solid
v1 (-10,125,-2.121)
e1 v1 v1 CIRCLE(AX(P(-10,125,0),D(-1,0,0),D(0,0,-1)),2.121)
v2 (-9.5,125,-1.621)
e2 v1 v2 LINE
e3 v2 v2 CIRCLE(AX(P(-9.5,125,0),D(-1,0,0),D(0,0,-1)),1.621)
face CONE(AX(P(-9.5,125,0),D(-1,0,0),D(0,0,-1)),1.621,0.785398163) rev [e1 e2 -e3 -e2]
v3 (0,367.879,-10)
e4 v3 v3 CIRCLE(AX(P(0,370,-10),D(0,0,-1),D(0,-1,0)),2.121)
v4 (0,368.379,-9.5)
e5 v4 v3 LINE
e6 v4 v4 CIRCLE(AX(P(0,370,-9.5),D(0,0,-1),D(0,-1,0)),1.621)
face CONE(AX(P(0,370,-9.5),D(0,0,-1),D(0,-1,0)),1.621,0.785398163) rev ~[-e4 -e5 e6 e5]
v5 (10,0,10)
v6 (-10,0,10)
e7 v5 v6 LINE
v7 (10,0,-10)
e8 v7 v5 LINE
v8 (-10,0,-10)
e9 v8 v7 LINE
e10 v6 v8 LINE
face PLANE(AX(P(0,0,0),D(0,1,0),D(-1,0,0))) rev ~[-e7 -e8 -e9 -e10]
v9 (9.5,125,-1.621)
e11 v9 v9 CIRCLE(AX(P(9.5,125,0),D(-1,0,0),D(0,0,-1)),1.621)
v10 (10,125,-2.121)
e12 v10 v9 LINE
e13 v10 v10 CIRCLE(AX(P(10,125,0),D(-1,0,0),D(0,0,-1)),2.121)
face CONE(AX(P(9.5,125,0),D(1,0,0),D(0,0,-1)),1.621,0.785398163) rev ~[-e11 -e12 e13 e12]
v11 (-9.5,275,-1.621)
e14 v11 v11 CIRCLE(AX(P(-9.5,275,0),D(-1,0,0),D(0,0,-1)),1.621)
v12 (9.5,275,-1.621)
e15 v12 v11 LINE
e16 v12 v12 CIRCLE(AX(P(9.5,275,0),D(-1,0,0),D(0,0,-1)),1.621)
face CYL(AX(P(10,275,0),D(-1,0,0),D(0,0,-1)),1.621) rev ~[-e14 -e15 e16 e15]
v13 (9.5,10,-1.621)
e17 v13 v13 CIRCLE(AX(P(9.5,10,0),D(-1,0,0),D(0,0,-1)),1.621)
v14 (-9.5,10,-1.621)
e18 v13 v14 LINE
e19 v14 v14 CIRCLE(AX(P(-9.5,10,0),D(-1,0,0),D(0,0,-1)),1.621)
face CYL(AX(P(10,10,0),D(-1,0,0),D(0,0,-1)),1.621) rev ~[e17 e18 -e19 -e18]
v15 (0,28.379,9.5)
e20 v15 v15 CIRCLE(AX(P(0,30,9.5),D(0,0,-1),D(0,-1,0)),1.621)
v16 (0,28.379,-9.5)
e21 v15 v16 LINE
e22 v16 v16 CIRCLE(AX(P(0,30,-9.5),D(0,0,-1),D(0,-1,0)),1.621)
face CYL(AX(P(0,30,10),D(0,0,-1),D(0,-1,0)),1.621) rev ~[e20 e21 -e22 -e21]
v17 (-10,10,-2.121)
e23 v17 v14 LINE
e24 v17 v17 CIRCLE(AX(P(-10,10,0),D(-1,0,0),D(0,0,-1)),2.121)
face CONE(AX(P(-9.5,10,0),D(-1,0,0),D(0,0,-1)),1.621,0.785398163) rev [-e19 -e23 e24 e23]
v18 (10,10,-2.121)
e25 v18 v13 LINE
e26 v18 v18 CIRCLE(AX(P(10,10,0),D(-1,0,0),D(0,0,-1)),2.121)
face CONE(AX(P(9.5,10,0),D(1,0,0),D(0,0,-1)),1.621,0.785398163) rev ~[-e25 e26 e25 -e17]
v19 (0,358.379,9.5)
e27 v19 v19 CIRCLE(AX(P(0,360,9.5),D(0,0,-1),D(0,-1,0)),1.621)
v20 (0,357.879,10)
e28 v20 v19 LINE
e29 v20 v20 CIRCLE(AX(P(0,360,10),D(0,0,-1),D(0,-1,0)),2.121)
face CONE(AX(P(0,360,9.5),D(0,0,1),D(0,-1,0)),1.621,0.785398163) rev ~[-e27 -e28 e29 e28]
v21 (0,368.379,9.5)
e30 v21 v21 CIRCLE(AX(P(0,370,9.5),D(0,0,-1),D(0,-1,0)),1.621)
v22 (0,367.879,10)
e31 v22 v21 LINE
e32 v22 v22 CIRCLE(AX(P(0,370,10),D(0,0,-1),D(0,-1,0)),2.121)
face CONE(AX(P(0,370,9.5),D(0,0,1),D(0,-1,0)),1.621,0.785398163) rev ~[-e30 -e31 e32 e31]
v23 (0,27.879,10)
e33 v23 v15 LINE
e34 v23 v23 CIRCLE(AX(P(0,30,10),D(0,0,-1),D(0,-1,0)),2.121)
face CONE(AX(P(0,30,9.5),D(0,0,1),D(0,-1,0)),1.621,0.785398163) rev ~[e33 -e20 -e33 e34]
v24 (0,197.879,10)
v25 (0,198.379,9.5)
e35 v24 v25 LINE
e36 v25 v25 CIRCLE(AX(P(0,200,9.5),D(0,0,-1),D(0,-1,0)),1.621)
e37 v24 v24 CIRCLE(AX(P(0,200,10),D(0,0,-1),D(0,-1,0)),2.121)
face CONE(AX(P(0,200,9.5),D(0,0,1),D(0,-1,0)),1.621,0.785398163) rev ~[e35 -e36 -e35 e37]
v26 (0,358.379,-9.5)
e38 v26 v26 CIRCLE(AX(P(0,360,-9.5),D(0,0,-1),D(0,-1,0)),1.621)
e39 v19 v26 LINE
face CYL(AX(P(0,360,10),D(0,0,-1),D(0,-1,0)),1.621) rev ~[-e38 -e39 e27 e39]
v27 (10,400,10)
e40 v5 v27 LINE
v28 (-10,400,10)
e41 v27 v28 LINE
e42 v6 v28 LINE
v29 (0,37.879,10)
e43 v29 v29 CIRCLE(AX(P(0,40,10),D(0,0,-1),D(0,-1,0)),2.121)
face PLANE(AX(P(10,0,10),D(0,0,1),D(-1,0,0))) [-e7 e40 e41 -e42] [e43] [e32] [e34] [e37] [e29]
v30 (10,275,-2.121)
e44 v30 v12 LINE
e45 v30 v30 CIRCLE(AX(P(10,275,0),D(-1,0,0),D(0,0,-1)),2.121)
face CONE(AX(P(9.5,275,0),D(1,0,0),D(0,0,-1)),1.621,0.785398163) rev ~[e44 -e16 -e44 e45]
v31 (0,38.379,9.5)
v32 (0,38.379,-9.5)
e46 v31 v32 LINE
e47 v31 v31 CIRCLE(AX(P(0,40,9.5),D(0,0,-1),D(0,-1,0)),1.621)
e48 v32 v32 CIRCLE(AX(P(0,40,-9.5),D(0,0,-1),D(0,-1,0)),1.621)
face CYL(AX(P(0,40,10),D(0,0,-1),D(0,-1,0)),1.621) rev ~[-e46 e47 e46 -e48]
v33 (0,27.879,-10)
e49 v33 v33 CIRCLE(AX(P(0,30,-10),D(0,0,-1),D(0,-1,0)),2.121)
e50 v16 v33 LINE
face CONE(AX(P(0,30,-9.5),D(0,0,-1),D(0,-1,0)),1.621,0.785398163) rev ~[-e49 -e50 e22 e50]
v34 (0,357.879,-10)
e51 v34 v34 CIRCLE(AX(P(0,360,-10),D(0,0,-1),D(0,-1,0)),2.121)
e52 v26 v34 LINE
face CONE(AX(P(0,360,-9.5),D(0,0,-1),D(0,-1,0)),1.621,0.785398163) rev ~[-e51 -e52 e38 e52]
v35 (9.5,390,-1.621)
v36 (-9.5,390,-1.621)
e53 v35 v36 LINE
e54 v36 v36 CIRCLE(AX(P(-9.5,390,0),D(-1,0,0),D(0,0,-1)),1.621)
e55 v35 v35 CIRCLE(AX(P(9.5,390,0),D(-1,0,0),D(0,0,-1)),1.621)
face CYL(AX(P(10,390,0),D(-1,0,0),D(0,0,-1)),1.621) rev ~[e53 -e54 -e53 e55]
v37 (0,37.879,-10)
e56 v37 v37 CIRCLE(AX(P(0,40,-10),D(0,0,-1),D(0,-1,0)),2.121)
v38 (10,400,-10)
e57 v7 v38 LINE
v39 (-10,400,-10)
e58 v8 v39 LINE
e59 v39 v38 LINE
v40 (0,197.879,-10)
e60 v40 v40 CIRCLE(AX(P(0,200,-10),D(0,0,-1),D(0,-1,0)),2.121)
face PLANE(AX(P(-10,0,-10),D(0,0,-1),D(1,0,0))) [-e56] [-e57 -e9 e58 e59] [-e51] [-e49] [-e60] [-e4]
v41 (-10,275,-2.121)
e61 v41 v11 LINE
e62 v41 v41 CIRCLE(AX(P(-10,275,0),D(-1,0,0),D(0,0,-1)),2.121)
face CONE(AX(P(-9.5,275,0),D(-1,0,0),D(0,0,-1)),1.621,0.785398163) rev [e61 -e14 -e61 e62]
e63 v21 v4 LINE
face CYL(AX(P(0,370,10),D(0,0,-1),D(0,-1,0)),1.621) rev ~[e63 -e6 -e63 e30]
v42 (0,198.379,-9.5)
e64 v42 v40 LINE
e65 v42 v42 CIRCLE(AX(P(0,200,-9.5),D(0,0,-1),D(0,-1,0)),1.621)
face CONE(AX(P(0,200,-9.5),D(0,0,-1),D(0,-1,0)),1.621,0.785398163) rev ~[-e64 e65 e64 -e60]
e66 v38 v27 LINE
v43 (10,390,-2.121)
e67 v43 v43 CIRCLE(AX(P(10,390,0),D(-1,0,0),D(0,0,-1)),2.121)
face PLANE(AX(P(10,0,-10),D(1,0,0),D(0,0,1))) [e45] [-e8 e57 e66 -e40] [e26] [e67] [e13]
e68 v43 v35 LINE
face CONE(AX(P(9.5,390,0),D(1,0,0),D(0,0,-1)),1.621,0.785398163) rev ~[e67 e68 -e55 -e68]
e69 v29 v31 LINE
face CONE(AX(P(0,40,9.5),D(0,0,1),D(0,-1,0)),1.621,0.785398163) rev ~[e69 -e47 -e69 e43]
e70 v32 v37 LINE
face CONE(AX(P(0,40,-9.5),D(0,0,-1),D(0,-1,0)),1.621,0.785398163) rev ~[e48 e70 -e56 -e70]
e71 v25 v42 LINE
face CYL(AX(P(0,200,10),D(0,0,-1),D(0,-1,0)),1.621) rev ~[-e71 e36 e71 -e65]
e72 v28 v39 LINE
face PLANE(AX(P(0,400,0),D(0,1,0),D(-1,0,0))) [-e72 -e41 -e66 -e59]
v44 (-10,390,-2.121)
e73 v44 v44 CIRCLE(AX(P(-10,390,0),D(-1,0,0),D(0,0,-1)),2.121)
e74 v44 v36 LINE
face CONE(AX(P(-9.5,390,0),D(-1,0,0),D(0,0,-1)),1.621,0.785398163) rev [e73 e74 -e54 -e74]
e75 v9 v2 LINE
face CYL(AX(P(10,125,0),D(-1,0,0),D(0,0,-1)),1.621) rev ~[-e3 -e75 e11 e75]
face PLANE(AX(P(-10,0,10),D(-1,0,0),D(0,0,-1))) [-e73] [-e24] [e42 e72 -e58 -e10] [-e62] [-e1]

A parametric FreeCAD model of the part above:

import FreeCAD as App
import Part
import Sketcher
from FreeCAD import Vector


def edges_at(feature, points):
    """Names of the edges that pass closest to the given points."""
    edges = feature.Shape.Edges
    near = lambda p: min(range(len(edges)), key=lambda i: edges[i].distToShape(Part.Vertex(*p))[0])
    return sorted({f"Edge{near(p) + 1}" for p in points})


def add_polygon(sketch, points):
    """Adds a closed chain of lines whose ends are joined by coincident constraints."""
    first, n = sketch.GeometryCount, len(points)
    for a, b in zip(points, points[1:] + points[:1]):
        sketch.addGeometry(Part.LineSegment(App.Vector(*a, 0), App.Vector(*b, 0)), False)
    for i in range(n):
        sketch.addConstraint(Sketcher.Constraint("Coincident", first + i, 2, first + (i + 1) % n, 1))

doc = App.newDocument("Part")
params = doc.addObject("Spreadsheet::Sheet", "Params")
for row, (alias, value) in enumerate([
    ("sketch1_width", "20 mm"),
    ("pad1_length", "400 mm"),
    ("hole_diameter", "3.242 mm"),
    ("hole2_diameter", "3.242 mm"),
    ("hole2_depth", "47.25 mm"),
    ("hole3_diameter", "3.242 mm"),
    ("hole3_depth", "51.25 mm"),
    ("hole4_diameter", "3.242 mm"),
    ("hole4_depth", "57.3 mm"),
    ("chamfer_size", "0.5 mm"),
], start=1):
    params.set(f"A{row}", alias)
    params.set(f"B{row}", "=" + value)
    params.setAlias(f"B{row}", alias)

body = doc.addObject("PartDesign::Body", "Body")

sketch1 = body.newObject("Sketcher::SketchObject", "Sketch")
sketch1.AttachmentSupport = (doc.getObject("XZ_Plane"), [""])
sketch1.MapMode = "FlatFace"
add_polygon(sketch1, [(-10, 10), (10, 10), (10, -10), (-10, -10)])
sketch1.addConstraint([
    Sketcher.Constraint("Horizontal", 0),
    Sketcher.Constraint("Vertical", 1),
    Sketcher.Constraint("Horizontal", 2),
    Sketcher.Constraint("Vertical", 3),
    Sketcher.Constraint("Symmetric", 0, 2, 2, 2, -1, 1),
    Sketcher.Constraint("Equal", 2, 1),
    Sketcher.Constraint("DistanceX", 0, 1, 0, 2, 20.0),
])
sketch1.setExpression("Constraints[10]", "Params.sketch1_width")
pad1 = body.newObject("PartDesign::Pad", "Pad")
pad1.Profile = sketch1
pad1.setExpression("Length", "Params.pad1_length")
pad1.Reversed = True

sketch2 = body.newObject("Sketcher::SketchObject", "Sketch001")
sketch2.AttachmentSupport = (doc.getObject("YZ_Plane"), [""])
sketch2.MapMode = "FlatFace"
sketch2.AttachmentOffset = App.Placement(Vector(0, 0, 10), App.Rotation())
sketch2.addGeometry([
    Part.Circle(Vector(10, 0, 0), Vector(0, 0, 1), 1.621),
    Part.Circle(Vector(125, 0, 0), Vector(0, 0, 1), 1.621),
    Part.Circle(Vector(275, 0, 0), Vector(0, 0, 1), 1.621),
    Part.Circle(Vector(390, 0, 0), Vector(0, 0, 1), 1.621),
], False)
sketch2.addConstraint([
    Sketcher.Constraint("Equal", 0, 1),
    Sketcher.Constraint("Equal", 1, 2),
    Sketcher.Constraint("Equal", 2, 3),
    Sketcher.Constraint("PointOnObject", 0, 3, -1),
    Sketcher.Constraint("PointOnObject", 1, 3, -1),
    Sketcher.Constraint("PointOnObject", 2, 3, -1),
    Sketcher.Constraint("PointOnObject", 3, 3, -1),
    Sketcher.Constraint("Diameter", 0, 3.242),
    Sketcher.Constraint("DistanceX", -1, 1, 0, 3, 10.0),
    Sketcher.Constraint("DistanceX", -1, 1, 1, 3, 125.0),
    Sketcher.Constraint("DistanceX", -1, 1, 2, 3, 275.0),
    Sketcher.Constraint("DistanceX", -1, 1, 3, 3, 390.0),
])
doc.recompute()
hole = body.newObject("PartDesign::Hole", "Hole")
hole.Profile = sketch2
hole.ThreadType = "None"
hole.setExpression("Diameter", "Params.hole_diameter")
hole.DepthType = "ThroughAll"

sketch3 = body.newObject("Sketcher::SketchObject", "Sketch002")
sketch3.AttachmentSupport = (doc.getObject("XY_Plane"), [""])
sketch3.MapMode = "FlatFace"
sketch3.AttachmentOffset = App.Placement(Vector(0, 0, 10), App.Rotation())
sketch3.addGeometry([
    Part.Circle(Vector(0, 30, 0), Vector(0, 0, 1), 1.621),
    Part.Circle(Vector(0, 370, 0), Vector(0, 0, 1), 1.621),
], False)
sketch3.addConstraint([
    Sketcher.Constraint("Equal", 0, 1),
    Sketcher.Constraint("PointOnObject", 0, 3, -2),
    Sketcher.Constraint("PointOnObject", 1, 3, -2),
    Sketcher.Constraint("Diameter", 0, 3.242),
    Sketcher.Constraint("DistanceY", -1, 1, 0, 3, 30.0),
    Sketcher.Constraint("DistanceY", -1, 1, 1, 3, 370.0),
])
doc.recompute()
hole2 = body.newObject("PartDesign::Hole", "Hole001")
hole2.Profile = sketch3
hole2.ThreadType = "None"
hole2.setExpression("Diameter", "Params.hole2_diameter")
hole2.DepthType = "Dimension"
hole2.setExpression("Depth", "Params.hole2_depth")
hole2.DrillPoint = "Angled"
hole2.DrillPointAngle = 118

sketch4 = body.newObject("Sketcher::SketchObject", "Sketch003")
sketch4.AttachmentSupport = (doc.getObject("XY_Plane"), [""])
sketch4.MapMode = "FlatFace"
sketch4.AttachmentOffset = App.Placement(Vector(0, 0, 10), App.Rotation())
sketch4.addGeometry([
    Part.Circle(Vector(0, 40, 0), Vector(0, 0, 1), 1.621),
    Part.Circle(Vector(0, 360, 0), Vector(0, 0, 1), 1.621),
], False)
sketch4.addConstraint([
    Sketcher.Constraint("Equal", 0, 1),
    Sketcher.Constraint("PointOnObject", 0, 3, -2),
    Sketcher.Constraint("PointOnObject", 1, 3, -2),
    Sketcher.Constraint("Diameter", 0, 3.242),
    Sketcher.Constraint("DistanceY", -1, 1, 0, 3, 40.0),
    Sketcher.Constraint("DistanceY", -1, 1, 1, 3, 360.0),
])
doc.recompute()
hole3 = body.newObject("PartDesign::Hole", "Hole002")
hole3.Profile = sketch4
hole3.ThreadType = "None"
hole3.setExpression("Diameter", "Params.hole3_diameter")
hole3.DepthType = "Dimension"
hole3.setExpression("Depth", "Params.hole3_depth")
hole3.DrillPoint = "Angled"
hole3.DrillPointAngle = 118

sketch5 = body.newObject("Sketcher::SketchObject", "Sketch004")
sketch5.AttachmentSupport = (doc.getObject("XY_Plane"), [""])
sketch5.MapMode = "FlatFace"
sketch5.AttachmentOffset = App.Placement(Vector(0, 0, 10), App.Rotation())
sketch5.addGeometry(Part.Circle(Vector(0, 200, 0), Vector(0, 0, 1), 1.621), False)
sketch5.addConstraint([
    Sketcher.Constraint("PointOnObject", 0, 3, -2),
    Sketcher.Constraint("Diameter", 0, 3.242),
    Sketcher.Constraint("DistanceY", -1, 1, 0, 3, 200.0),
])
doc.recompute()
hole4 = body.newObject("PartDesign::Hole", "Hole003")
hole4.Profile = sketch5
hole4.ThreadType = "None"
hole4.setExpression("Diameter", "Params.hole4_diameter")
hole4.DepthType = "Dimension"
hole4.setExpression("Depth", "Params.hole4_depth")
hole4.DrillPoint = "Angled"
hole4.DrillPointAngle = 118
doc.recompute()

chamfer = body.newObject("PartDesign::Chamfer", "Chamfer")
chamfer.Base = (hole4, edges_at(hole4, [
    (10, 390, 1.621),
    (10, 275, 1.621),
    (10, 125, 1.621),
    (10, 10, 1.621),
    (0, 371.621, 10),
    (0, 31.621, 10),
    (0, 361.621, 10),
    (0, 41.621, 10),
    (0, 201.621, 10),
    (0, 201.621, -10),
    (0, 361.621, -10),
    (0, 41.621, -10),
    (0, 371.621, -10),
    (0, 31.621, -10),
    (-10, 390, 1.621),
    (-10, 275, 1.621),
    (-10, 125, 1.621),
    (-10, 10, 1.621),
]))
chamfer.setExpression("Size", "Params.chamfer_size")

doc.recompute()
